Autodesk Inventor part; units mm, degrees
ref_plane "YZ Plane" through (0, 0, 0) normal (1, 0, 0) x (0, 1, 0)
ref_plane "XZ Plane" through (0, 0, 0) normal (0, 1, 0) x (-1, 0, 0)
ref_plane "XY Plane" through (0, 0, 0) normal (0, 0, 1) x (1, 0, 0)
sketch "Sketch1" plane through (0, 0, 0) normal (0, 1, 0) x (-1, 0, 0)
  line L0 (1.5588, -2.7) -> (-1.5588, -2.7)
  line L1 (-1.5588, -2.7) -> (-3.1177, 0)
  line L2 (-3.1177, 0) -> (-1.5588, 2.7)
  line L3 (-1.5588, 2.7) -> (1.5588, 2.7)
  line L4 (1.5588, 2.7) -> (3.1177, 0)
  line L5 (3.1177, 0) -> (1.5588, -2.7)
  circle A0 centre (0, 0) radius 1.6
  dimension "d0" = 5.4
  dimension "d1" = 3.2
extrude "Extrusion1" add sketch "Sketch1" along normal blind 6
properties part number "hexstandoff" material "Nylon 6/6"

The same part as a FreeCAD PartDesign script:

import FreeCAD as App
import Part
import Sketcher
from FreeCAD import Vector
Q = App.Units.Quantity


def add_polygon(sketch, points):
    """Adds a closed chain of lines whose ends are joined by coincident constraints."""
    first, n = sketch.GeometryCount, len(points)
    for a, b in zip(points, points[1:] + points[:1]):
        sketch.addGeometry(Part.LineSegment(App.Vector(*a, 0), App.Vector(*b, 0)), False)
    for i in range(n):
        sketch.addConstraint(Sketcher.Constraint("Coincident", first + i, 2, first + (i + 1) % n, 1))

doc = App.newDocument("Part")
params = doc.addObject("Spreadsheet::Sheet", "Params")
for row, (alias, value) in enumerate([
    ("sketch1_diameter", "3.2 mm"),
    ("pad1_length", "6 mm"),
], start=1):
    params.set(f"A{row}", alias)
    params.set(f"B{row}", "=" + value)
    params.setAlias(f"B{row}", alias)

body = doc.addObject("PartDesign::Body", "Body")

# Sketch on XZ plane
sketch1 = doc.addObject("Sketcher::SketchObject", "Sketch")
body.addObject(sketch1)
sketch1.AttachmentSupport = (doc.XZ_Plane, [""])
sketch1.MapMode = "FlatFace"
add_polygon(sketch1, [(1.6, -2.7), (-1.6, -2.7), (-3.1, 0), (-1.6, 2.7), (1.6, 2.7), (3.1, 0)])  # lines 0-5
sketch1.addGeometry(Part.Circle(Vector(0, 0, 0), Vector(0, 0, 1), 1.6), False)  # 6
sketch1.addConstraint(Sketcher.Constraint("Horizontal", 0))
sketch1.addConstraint(Sketcher.Constraint("Horizontal", 3))
sketch1.addConstraint(Sketcher.Constraint("Coincident", 6, 3, -1, 1))
sketch1.addConstraint(Sketcher.Constraint("Symmetric", 0, 2, 3, 2, -1, 1))
sketch1.addConstraint(Sketcher.Constraint("Symmetric", 1, 2, 4, 2, -1, 1))
sketch1.addConstraint(Sketcher.Constraint("PointOnObject", 1, 2, -1))
sketch1.addConstraint(Sketcher.Constraint("Parallel", 2, 5))
sketch1.addConstraint(Sketcher.Constraint("Vertical", 0, 2, 2, 2))
sketch1.addConstraint(Sketcher.Constraint("Diameter", 6, Q("3.2 mm")))
sketch1.addConstraint(Sketcher.Constraint("DistanceY", 0, 2, 2, 2, Q("5.4 mm")))
sketch1.addConstraint(Sketcher.Constraint("Angle", 1, Q("120.0009 deg")))
sketch1.addConstraint(Sketcher.Constraint("DistanceX", 0, 2, 0, 1, Q("3.1176 mm")))
sketch1.setExpression("Constraints[14]", "Params.sketch1_diameter")
pad1 = doc.addObject("PartDesign::Pad", "Pad")
body.addObject(pad1)
pad1.Profile = sketch1
pad1.setExpression("Length", "Params.pad1_length")
pad1.Reversed = True

doc.recompute()
